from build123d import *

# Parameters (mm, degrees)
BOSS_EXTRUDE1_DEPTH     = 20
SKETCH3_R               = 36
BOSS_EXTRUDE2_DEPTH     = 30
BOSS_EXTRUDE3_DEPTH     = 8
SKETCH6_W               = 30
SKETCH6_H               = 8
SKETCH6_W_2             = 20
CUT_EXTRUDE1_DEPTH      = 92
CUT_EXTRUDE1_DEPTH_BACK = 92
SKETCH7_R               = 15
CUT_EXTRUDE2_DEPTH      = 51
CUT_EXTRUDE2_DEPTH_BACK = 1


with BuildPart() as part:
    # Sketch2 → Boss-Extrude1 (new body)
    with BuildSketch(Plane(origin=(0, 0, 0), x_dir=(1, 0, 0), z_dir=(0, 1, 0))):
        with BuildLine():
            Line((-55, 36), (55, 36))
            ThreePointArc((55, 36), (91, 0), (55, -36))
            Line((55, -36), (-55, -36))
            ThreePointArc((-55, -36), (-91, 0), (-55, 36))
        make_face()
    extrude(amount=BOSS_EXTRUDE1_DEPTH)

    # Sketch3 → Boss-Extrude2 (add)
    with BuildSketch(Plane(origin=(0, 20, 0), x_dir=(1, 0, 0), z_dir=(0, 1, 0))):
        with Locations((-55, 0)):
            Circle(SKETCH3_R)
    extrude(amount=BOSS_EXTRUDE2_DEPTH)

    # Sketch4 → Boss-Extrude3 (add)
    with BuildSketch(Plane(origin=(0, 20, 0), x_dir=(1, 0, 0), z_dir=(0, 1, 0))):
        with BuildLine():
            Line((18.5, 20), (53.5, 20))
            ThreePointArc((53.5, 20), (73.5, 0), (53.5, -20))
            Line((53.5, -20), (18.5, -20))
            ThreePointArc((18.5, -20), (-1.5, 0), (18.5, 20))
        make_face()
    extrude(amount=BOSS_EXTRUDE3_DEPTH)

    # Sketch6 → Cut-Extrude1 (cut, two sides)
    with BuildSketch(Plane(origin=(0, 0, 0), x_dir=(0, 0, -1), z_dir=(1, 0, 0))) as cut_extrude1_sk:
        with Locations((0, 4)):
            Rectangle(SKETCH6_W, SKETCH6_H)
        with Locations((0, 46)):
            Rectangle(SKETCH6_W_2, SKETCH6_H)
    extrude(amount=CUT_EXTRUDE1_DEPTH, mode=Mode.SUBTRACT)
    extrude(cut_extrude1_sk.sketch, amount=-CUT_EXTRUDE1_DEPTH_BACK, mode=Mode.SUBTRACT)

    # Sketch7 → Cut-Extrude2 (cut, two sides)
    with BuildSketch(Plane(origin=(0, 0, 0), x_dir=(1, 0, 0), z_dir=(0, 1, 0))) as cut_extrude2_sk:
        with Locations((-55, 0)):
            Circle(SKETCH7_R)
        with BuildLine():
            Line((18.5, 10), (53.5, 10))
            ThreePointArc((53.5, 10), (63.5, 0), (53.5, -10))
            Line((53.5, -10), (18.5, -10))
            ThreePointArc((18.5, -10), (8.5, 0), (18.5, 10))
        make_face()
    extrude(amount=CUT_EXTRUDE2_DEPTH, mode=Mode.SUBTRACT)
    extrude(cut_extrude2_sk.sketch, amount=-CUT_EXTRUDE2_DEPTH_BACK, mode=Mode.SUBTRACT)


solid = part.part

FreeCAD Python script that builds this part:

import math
import FreeCAD as App
import Part
import Sketcher
from FreeCAD import Vector
Q = App.Units.Quantity

doc = App.newDocument("Part")
params = doc.addObject("Spreadsheet::Sheet", "Params")
for row, (alias, value) in enumerate([
    ("sketch1_radius", "36 mm"),
    ("sketch1_width", "110 mm"),
    ("pad1_length", "20 mm"),
    ("sketch2_diameter", "72 mm"),
    ("pad2_length", "30 mm"),
    ("sketch3_radius", "20 mm"),
    ("sketch3_width", "35 mm"),
    ("pad3_length", "8 mm"),
    ("sketch4_width", "8 mm"),
    ("sketch4_height", "30 mm"),
    ("sketch4_height2", "20 mm"),
    ("sketch5_diameter", "30 mm"),
    ("sketch5_radius", "10 mm"),
    ("sketch5_width", "35 mm"),
], start=1):
    params.set(f"A{row}", alias)
    params.set(f"B{row}", "=" + value)
    params.setAlias(f"B{row}", alias)

body = doc.addObject("PartDesign::Body", "Body")

# Sketch on XZ plane
sketch1 = body.newObject("Sketcher::SketchObject", "Sketch")
sketch1.AttachmentSupport = (doc.getObject("XZ_Plane"), [""])
sketch1.MapMode = "FlatFace"
sketch1.addGeometry(Part.LineSegment(Vector(55, -36, 0), Vector(-55, -36, 0)), False)
sketch1.addGeometry(Part.ArcOfCircle(Part.Circle(Vector(-55, 0, 0), Vector(0, 0, 1), 36), math.radians(90), math.radians(270)), False)
sketch1.addGeometry(Part.LineSegment(Vector(-55, 36, 0), Vector(55, 36, 0)), False)
sketch1.addGeometry(Part.ArcOfCircle(Part.Circle(Vector(55, 0, 0), Vector(0, 0, 1), 36), math.radians(-90), math.radians(90)), False)
sketch1.addConstraint(Sketcher.Constraint("Tangent", 0, 2, 1, 2))
sketch1.addConstraint(Sketcher.Constraint("Tangent", 1, 1, 2, 1))
sketch1.addConstraint(Sketcher.Constraint("Tangent", 2, 2, 3, 2))
sketch1.addConstraint(Sketcher.Constraint("Tangent", 3, 1, 0, 1))
sketch1.addConstraint(Sketcher.Constraint("Horizontal", 0))
sketch1.addConstraint(Sketcher.Constraint("Horizontal", 2))
sketch1.addConstraint(Sketcher.Constraint("Symmetric", 1, 3, 3, 3, -1, 1))
sketch1.addConstraint(Sketcher.Constraint("Radius", 1, Q("36 mm")))
sketch1.addConstraint(Sketcher.Constraint("DistanceX", 0, 2, 0, 1, Q("110 mm")))
sketch1.setExpression("Constraints[7]", "Params.sketch1_radius")
sketch1.setExpression("Constraints[8]", "Params.sketch1_width")
pad1 = body.newObject("PartDesign::Pad", "Pad")
pad1.Profile = sketch1
pad1.setExpression("Length", "Params.pad1_length")
pad1.Reversed = True

# Sketch on XZ plane
sketch2 = body.newObject("Sketcher::SketchObject", "Sketch001")
sketch2.AttachmentSupport = (doc.getObject("XZ_Plane"), [""])
sketch2.MapMode = "FlatFace"
sketch2.AttachmentOffset = App.Placement(Vector(0, 0, -20), App.Rotation())
sketch2.addGeometry(Part.Circle(Vector(-55, 0, 0), Vector(0, 0, 1), 36), False)
sketch2.addConstraint(Sketcher.Constraint("PointOnObject", 0, 3, -1))
sketch2.addConstraint(Sketcher.Constraint("Diameter", 0, Q("72 mm")))
sketch2.addConstraint(Sketcher.Constraint("DistanceX", 0, 3, -1, 1, Q("55 mm")))
sketch2.setExpression("Constraints[1]", "Params.sketch2_diameter")
pad2 = body.newObject("PartDesign::Pad", "Pad001")
pad2.Profile = sketch2
pad2.setExpression("Length", "Params.pad2_length")
pad2.Reversed = True

# Sketch on XZ plane
sketch3 = body.newObject("Sketcher::SketchObject", "Sketch002")
sketch3.AttachmentSupport = (doc.getObject("XZ_Plane"), [""])
sketch3.MapMode = "FlatFace"
sketch3.AttachmentOffset = App.Placement(Vector(0, 0, -20), App.Rotation())
sketch3.addGeometry(Part.LineSegment(Vector(54, -20, 0), Vector(18, -20, 0)), False)
sketch3.addGeometry(Part.ArcOfCircle(Part.Circle(Vector(18, 0, 0), Vector(0, 0, 1), 20), math.radians(90), math.radians(270)), False)
sketch3.addGeometry(Part.LineSegment(Vector(18, 20, 0), Vector(54, 20, 0)), False)
sketch3.addGeometry(Part.ArcOfCircle(Part.Circle(Vector(54, 0, 0), Vector(0, 0, 1), 20), math.radians(-90), math.radians(90)), False)
sketch3.addConstraint(Sketcher.Constraint("Tangent", 0, 2, 1, 2))
sketch3.addConstraint(Sketcher.Constraint("Tangent", 1, 1, 2, 1))
sketch3.addConstraint(Sketcher.Constraint("Tangent", 2, 2, 3, 2))
sketch3.addConstraint(Sketcher.Constraint("Tangent", 3, 1, 0, 1))
sketch3.addConstraint(Sketcher.Constraint("Horizontal", 0))
sketch3.addConstraint(Sketcher.Constraint("Horizontal", 2))
sketch3.addConstraint(Sketcher.Constraint("PointOnObject", 1, 3, -1))
sketch3.addConstraint(Sketcher.Constraint("Radius", 1, Q("20 mm")))
sketch3.addConstraint(Sketcher.Constraint("DistanceX", 0, 2, 0, 1, Q("35 mm")))
sketch3.addConstraint(Sketcher.Constraint("DistanceX", -1, 1, 1, 3, Q("18.5 mm")))
sketch3.setExpression("Constraints[7]", "Params.sketch3_radius")
sketch3.setExpression("Constraints[8]", "Params.sketch3_width")
pad3 = body.newObject("PartDesign::Pad", "Pad002")
pad3.Profile = sketch3
pad3.setExpression("Length", "Params.pad3_length")
pad3.Reversed = True

# Sketch on YZ plane
sketch4 = body.newObject("Sketcher::SketchObject", "Sketch003")
sketch4.AttachmentSupport = (doc.getObject("YZ_Plane"), [""])
sketch4.MapMode = "FlatFace"
sketch4.addGeometry(Part.LineSegment(Vector(8, 15, 0), Vector(0, 15, 0)), False)
sketch4.addGeometry(Part.LineSegment(Vector(0, 15, 0), Vector(0, -15, 0)), False)
sketch4.addGeometry(Part.LineSegment(Vector(0, -15, 0), Vector(8, -15, 0)), False)
sketch4.addGeometry(Part.LineSegment(Vector(8, -15, 0), Vector(8, 15, 0)), False)
sketch4.addGeometry(Part.LineSegment(Vector(50, 10, 0), Vector(42, 10, 0)), False)
sketch4.addGeometry(Part.LineSegment(Vector(42, 10, 0), Vector(42, -10, 0)), False)
sketch4.addGeometry(Part.LineSegment(Vector(42, -10, 0), Vector(50, -10, 0)), False)
sketch4.addGeometry(Part.LineSegment(Vector(50, -10, 0), Vector(50, 10, 0)), False)
sketch4.addConstraint(Sketcher.Constraint("Coincident", 0, 2, 1, 1))
sketch4.addConstraint(Sketcher.Constraint("Coincident", 1, 2, 2, 1))
sketch4.addConstraint(Sketcher.Constraint("Coincident", 2, 2, 3, 1))
sketch4.addConstraint(Sketcher.Constraint("Coincident", 3, 2, 0, 1))
sketch4.addConstraint(Sketcher.Constraint("Coincident", 4, 2, 5, 1))
sketch4.addConstraint(Sketcher.Constraint("Coincident", 5, 2, 6, 1))
sketch4.addConstraint(Sketcher.Constraint("Coincident", 6, 2, 7, 1))
sketch4.addConstraint(Sketcher.Constraint("Coincident", 7, 2, 4, 1))
sketch4.addConstraint(Sketcher.Constraint("Horizontal", 0))
sketch4.addConstraint(Sketcher.Constraint("Vertical", 1))
sketch4.addConstraint(Sketcher.Constraint("Horizontal", 2))
sketch4.addConstraint(Sketcher.Constraint("Vertical", 3))
sketch4.addConstraint(Sketcher.Constraint("Horizontal", 4))
sketch4.addConstraint(Sketcher.Constraint("Vertical", 5))
sketch4.addConstraint(Sketcher.Constraint("Horizontal", 6))
sketch4.addConstraint(Sketcher.Constraint("Vertical", 7))
sketch4.addConstraint(Sketcher.Constraint("Symmetric", 0, 2, 1, 2, -1, 1))
sketch4.addConstraint(Sketcher.Constraint("Equal", 2, 4))
sketch4.addConstraint(Sketcher.Constraint("DistanceX", 0, 2, 0, 1, Q("8 mm")))
sketch4.addConstraint(Sketcher.Constraint("DistanceY", 1, 2, 1, 1, Q("30 mm")))
sketch4.addConstraint(Sketcher.Constraint("DistanceY", 5, 2, 5, 1, Q("20 mm")))
sketch4.addConstraint(Sketcher.Constraint("DistanceX", -1, 1, 4, 2, Q("42 mm")))
sketch4.addConstraint(Sketcher.Constraint("DistanceY", -1, 1, 4, 2, Q("10 mm")))
sketch4.setExpression("Constraints[18]", "Params.sketch4_width")
sketch4.setExpression("Constraints[19]", "Params.sketch4_height")
sketch4.setExpression("Constraints[20]", "Params.sketch4_height2")
pocket1 = body.newObject("PartDesign::Pocket", "Pocket")
pocket1.Profile = sketch4
pocket1.Type = "ThroughAll"
pocket1.Midplane = True

# Sketch on XZ plane
sketch5 = body.newObject("Sketcher::SketchObject", "Sketch004")
sketch5.AttachmentSupport = (doc.getObject("XZ_Plane"), [""])
sketch5.MapMode = "FlatFace"
sketch5.addGeometry(Part.Circle(Vector(-55, 0, 0), Vector(0, 0, 1), 15), False)
sketch5.addGeometry(Part.LineSegment(Vector(54, -10, 0), Vector(18, -10, 0)), False)
sketch5.addGeometry(Part.ArcOfCircle(Part.Circle(Vector(18, 0, 0), Vector(0, 0, 1), 10), math.radians(90), math.radians(270)), False)
sketch5.addGeometry(Part.LineSegment(Vector(18, 10, 0), Vector(54, 10, 0)), False)
sketch5.addGeometry(Part.ArcOfCircle(Part.Circle(Vector(54, 0, 0), Vector(0, 0, 1), 10), math.radians(-90), math.radians(90)), False)
sketch5.addConstraint(Sketcher.Constraint("Tangent", 1, 2, 2, 2))
sketch5.addConstraint(Sketcher.Constraint("Tangent", 2, 1, 3, 1))
sketch5.addConstraint(Sketcher.Constraint("Tangent", 3, 2, 4, 2))
sketch5.addConstraint(Sketcher.Constraint("Tangent", 4, 1, 1, 1))
sketch5.addConstraint(Sketcher.Constraint("Horizontal", 1))
sketch5.addConstraint(Sketcher.Constraint("Horizontal", 3))
sketch5.addConstraint(Sketcher.Constraint("PointOnObject", 0, 3, -1))
sketch5.addConstraint(Sketcher.Constraint("PointOnObject", 2, 3, -1))
sketch5.addConstraint(Sketcher.Constraint("Diameter", 0, Q("30 mm")))
sketch5.addConstraint(Sketcher.Constraint("Radius", 2, Q("10 mm")))
sketch5.addConstraint(Sketcher.Constraint("DistanceX", 1, 2, 1, 1, Q("35 mm")))
sketch5.addConstraint(Sketcher.Constraint("DistanceX", 0, 3, -1, 1, Q("55 mm")))
sketch5.addConstraint(Sketcher.Constraint("DistanceX", -1, 1, 2, 3, Q("18.5 mm")))
sketch5.setExpression("Constraints[8]", "Params.sketch5_diameter")
sketch5.setExpression("Constraints[9]", "Params.sketch5_radius")
sketch5.setExpression("Constraints[10]", "Params.sketch5_width")
pocket2 = body.newObject("PartDesign::Pocket", "Pocket001")
pocket2.Profile = sketch5
pocket2.Type = "ThroughAll"
pocket2.Midplane = True

doc.recompute()
